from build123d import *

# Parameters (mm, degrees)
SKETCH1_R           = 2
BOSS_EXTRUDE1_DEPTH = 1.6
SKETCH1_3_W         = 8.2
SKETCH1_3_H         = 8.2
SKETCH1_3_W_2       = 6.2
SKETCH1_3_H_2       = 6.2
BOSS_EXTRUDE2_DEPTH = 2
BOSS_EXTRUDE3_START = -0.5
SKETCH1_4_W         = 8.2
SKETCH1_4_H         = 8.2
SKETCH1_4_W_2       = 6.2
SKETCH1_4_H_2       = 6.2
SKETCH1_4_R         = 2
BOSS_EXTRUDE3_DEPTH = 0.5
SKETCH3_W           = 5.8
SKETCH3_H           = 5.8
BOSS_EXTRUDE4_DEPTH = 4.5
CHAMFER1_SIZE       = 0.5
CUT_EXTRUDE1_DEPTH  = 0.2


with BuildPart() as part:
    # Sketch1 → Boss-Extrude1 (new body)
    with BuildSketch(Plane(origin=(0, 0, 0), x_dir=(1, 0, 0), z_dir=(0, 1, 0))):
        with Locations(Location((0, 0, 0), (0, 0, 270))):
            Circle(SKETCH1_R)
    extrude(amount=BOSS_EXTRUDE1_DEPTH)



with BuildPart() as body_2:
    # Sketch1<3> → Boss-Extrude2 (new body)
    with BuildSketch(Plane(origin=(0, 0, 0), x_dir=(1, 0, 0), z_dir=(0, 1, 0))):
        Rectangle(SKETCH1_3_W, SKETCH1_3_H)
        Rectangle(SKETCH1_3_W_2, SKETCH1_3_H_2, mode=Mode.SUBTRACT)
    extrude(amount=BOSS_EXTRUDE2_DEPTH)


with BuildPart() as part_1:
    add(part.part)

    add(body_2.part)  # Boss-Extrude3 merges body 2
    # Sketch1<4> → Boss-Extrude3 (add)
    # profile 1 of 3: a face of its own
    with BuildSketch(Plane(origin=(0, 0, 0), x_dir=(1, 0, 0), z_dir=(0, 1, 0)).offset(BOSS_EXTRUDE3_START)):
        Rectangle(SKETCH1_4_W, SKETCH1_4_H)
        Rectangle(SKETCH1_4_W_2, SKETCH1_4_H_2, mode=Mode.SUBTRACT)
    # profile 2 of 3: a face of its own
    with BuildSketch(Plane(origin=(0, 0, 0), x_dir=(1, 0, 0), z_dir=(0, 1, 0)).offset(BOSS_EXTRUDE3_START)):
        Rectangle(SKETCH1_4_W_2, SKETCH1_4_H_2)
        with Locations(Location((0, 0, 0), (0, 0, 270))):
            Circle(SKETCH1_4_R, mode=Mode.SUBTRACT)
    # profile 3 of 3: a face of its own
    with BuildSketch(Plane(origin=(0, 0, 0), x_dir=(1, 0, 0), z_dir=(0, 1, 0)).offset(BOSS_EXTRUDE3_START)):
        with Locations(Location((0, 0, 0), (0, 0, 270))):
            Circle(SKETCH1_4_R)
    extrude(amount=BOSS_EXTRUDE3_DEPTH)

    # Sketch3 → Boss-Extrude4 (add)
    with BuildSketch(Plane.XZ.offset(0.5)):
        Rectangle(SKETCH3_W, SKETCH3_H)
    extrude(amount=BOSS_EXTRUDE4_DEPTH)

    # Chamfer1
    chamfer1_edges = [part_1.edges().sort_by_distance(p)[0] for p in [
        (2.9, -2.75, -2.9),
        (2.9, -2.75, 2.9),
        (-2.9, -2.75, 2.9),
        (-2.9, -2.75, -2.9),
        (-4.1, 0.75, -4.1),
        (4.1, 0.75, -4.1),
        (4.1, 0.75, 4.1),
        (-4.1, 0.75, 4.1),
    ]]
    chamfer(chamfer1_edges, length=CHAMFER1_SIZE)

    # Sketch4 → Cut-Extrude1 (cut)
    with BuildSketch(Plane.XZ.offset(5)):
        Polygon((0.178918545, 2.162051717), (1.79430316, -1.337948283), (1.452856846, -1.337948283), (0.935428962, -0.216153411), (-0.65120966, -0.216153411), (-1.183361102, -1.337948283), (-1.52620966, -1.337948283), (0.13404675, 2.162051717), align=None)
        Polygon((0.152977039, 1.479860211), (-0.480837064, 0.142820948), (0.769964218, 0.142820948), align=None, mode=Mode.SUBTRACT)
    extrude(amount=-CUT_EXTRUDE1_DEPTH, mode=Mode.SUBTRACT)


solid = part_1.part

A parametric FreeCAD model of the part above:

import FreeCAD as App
import Part
import Sketcher

V = App.Vector
Q = App.Units.Quantity


def edges_at(feature, points):
    """Names of the edges that pass closest to the given points."""
    edges = feature.Shape.Edges
    near = lambda p: min(range(len(edges)), key=lambda i: edges[i].distToShape(Part.Vertex(*p))[0])
    return sorted({f"Edge{near(p) + 1}" for p in points})

doc = App.newDocument("Part")
params = doc.addObject("Spreadsheet::Sheet", "Params")
for row, (alias, value) in enumerate([
    ("sketch1_diameter", "4 mm"),
    ("pad1_length", "1.6 mm"),
    ("sketch2_width", "8.2 mm"),
    ("sketch2_width2", "6.2 mm"),
    ("pad2_length", "2 mm"),
    ("sketch3_width", "8.2 mm"),
    ("pad3_length", "0.5 mm"),
    ("sketch4_width", "5.8 mm"),
    ("pad4_length", "4.5 mm"),
    ("chamfer_size", "0.5 mm"),
    ("pocket1_length", "0.2 mm"),
], start=1):
    params.set(f"A{row}", alias)
    params.set(f"B{row}", "=" + value)
    params.setAlias(f"B{row}", alias)

body = doc.addObject("PartDesign::Body", "Body")

# Sketch on XZ plane
sketch1 = body.newObject("Sketcher::SketchObject", "Sketch")
sketch1.AttachmentSupport = (doc.getObject("XZ_Plane"), [""])
sketch1.MapMode = "FlatFace"
sketch1.addGeometry(Part.Circle(V(0, 0, 0), V(0, 0, 1), 2), False)
sketch1.addConstraint(Sketcher.Constraint("Coincident", 0, 3, -1, 1))
sketch1.addConstraint(Sketcher.Constraint("Diameter", 0, Q("4 mm")))
sketch1.setExpression("Constraints[1]", "Params.sketch1_diameter")
pad1 = body.newObject("PartDesign::Pad", "Pad")
pad1.Profile = sketch1
pad1.setExpression("Length", "Params.pad1_length")
pad1.Reversed = True
body2 = doc.addObject("PartDesign::Body", "Body001")

# Sketch on XZ plane
sketch2 = body2.newObject("Sketcher::SketchObject", "Sketch001")
sketch2.AttachmentSupport = (doc.getObject("XZ_Plane001"), [""])
sketch2.MapMode = "FlatFace"
sketch2.addGeometry(Part.LineSegment(V(-4.1, -4.1, 0), V(-4.1, 4.1, 0)), False)
sketch2.addGeometry(Part.LineSegment(V(-4.1, 4.1, 0), V(4.1, 4.1, 0)), False)
sketch2.addGeometry(Part.LineSegment(V(4.1, 4.1, 0), V(4.1, -4.1, 0)), False)
sketch2.addGeometry(Part.LineSegment(V(4.1, -4.1, 0), V(-4.1, -4.1, 0)), False)
sketch2.addGeometry(Part.LineSegment(V(3.1, 3.1, 0), V(-3.1, 3.1, 0)), False)
sketch2.addGeometry(Part.LineSegment(V(-3.1, 3.1, 0), V(-3.1, -3.1, 0)), False)
sketch2.addGeometry(Part.LineSegment(V(-3.1, -3.1, 0), V(3.1, -3.1, 0)), False)
sketch2.addGeometry(Part.LineSegment(V(3.1, -3.1, 0), V(3.1, 3.1, 0)), False)
sketch2.addConstraint(Sketcher.Constraint("Coincident", 0, 2, 1, 1))
sketch2.addConstraint(Sketcher.Constraint("Coincident", 1, 2, 2, 1))
sketch2.addConstraint(Sketcher.Constraint("Coincident", 2, 2, 3, 1))
sketch2.addConstraint(Sketcher.Constraint("Coincident", 3, 2, 0, 1))
sketch2.addConstraint(Sketcher.Constraint("Coincident", 4, 2, 5, 1))
sketch2.addConstraint(Sketcher.Constraint("Coincident", 5, 2, 6, 1))
sketch2.addConstraint(Sketcher.Constraint("Coincident", 6, 2, 7, 1))
sketch2.addConstraint(Sketcher.Constraint("Coincident", 7, 2, 4, 1))
sketch2.addConstraint(Sketcher.Constraint("Vertical", 0))
sketch2.addConstraint(Sketcher.Constraint("Horizontal", 1))
sketch2.addConstraint(Sketcher.Constraint("Vertical", 2))
sketch2.addConstraint(Sketcher.Constraint("Horizontal", 3))
sketch2.addConstraint(Sketcher.Constraint("Horizontal", 4))
sketch2.addConstraint(Sketcher.Constraint("Vertical", 5))
sketch2.addConstraint(Sketcher.Constraint("Horizontal", 6))
sketch2.addConstraint(Sketcher.Constraint("Vertical", 7))
sketch2.addConstraint(Sketcher.Constraint("Symmetric", 0, 2, 2, 2, -1, 1))
sketch2.addConstraint(Sketcher.Constraint("Symmetric", 4, 2, 6, 2, -1, 1))
sketch2.addConstraint(Sketcher.Constraint("Equal", 3, 0))
sketch2.addConstraint(Sketcher.Constraint("Equal", 6, 5))
sketch2.addConstraint(Sketcher.Constraint("DistanceX", 1, 1, 1, 2, Q("8.2 mm")))
sketch2.addConstraint(Sketcher.Constraint("DistanceX", 4, 2, 4, 1, Q("6.2 mm")))
sketch2.setExpression("Constraints[20]", "Params.sketch2_width")
sketch2.setExpression("Constraints[21]", "Params.sketch2_width2")
pad2 = body2.newObject("PartDesign::Pad", "Pad001")
pad2.Profile = sketch2
pad2.setExpression("Length", "Params.pad2_length")
pad2.Reversed = True
body.AllowCompound = True
doc.recompute()

boolean = body.newObject("PartDesign::Boolean", "Boolean")
boolean.Type = "Fuse"
boolean.addObjects([body2])

# Sketch on XZ plane
sketch3 = body.newObject("Sketcher::SketchObject", "Sketch002")
sketch3.AttachmentSupport = (doc.getObject("XZ_Plane"), [""])
sketch3.MapMode = "FlatFace"
sketch3.AttachmentOffset = App.Placement(V(0, 0, 0.5), App.Rotation())
sketch3.addGeometry(Part.LineSegment(V(-4.1, -4.1, 0), V(-4.1, 4.1, 0)), False)
sketch3.addGeometry(Part.LineSegment(V(-4.1, 4.1, 0), V(4.1, 4.1, 0)), False)
sketch3.addGeometry(Part.LineSegment(V(4.1, 4.1, 0), V(4.1, -4.1, 0)), False)
sketch3.addGeometry(Part.LineSegment(V(4.1, -4.1, 0), V(-4.1, -4.1, 0)), False)
sketch3.addConstraint(Sketcher.Constraint("Coincident", 0, 2, 1, 1))
sketch3.addConstraint(Sketcher.Constraint("Coincident", 1, 2, 2, 1))
sketch3.addConstraint(Sketcher.Constraint("Coincident", 2, 2, 3, 1))
sketch3.addConstraint(Sketcher.Constraint("Coincident", 3, 2, 0, 1))
sketch3.addConstraint(Sketcher.Constraint("Vertical", 0))
sketch3.addConstraint(Sketcher.Constraint("Horizontal", 1))
sketch3.addConstraint(Sketcher.Constraint("Vertical", 2))
sketch3.addConstraint(Sketcher.Constraint("Horizontal", 3))
sketch3.addConstraint(Sketcher.Constraint("Symmetric", 0, 2, 2, 2, -1, 1))
sketch3.addConstraint(Sketcher.Constraint("Equal", 3, 0))
sketch3.addConstraint(Sketcher.Constraint("DistanceX", 1, 1, 1, 2, Q("8.2 mm")))
sketch3.setExpression("Constraints[10]", "Params.sketch3_width")
pad3 = body.newObject("PartDesign::Pad", "Pad002")
pad3.Profile = sketch3
pad3.setExpression("Length", "Params.pad3_length")
pad3.Reversed = True

# Sketch on XZ plane
sketch4 = body.newObject("Sketcher::SketchObject", "Sketch003")
sketch4.AttachmentSupport = (doc.getObject("XZ_Plane"), [""])
sketch4.MapMode = "FlatFace"
sketch4.AttachmentOffset = App.Placement(V(0, 0, 0.5), App.Rotation())
sketch4.addGeometry(Part.LineSegment(V(-2.9, 2.9, 0), V(-2.9, -2.9, 0)), False)
sketch4.addGeometry(Part.LineSegment(V(-2.9, -2.9, 0), V(2.9, -2.9, 0)), False)
sketch4.addGeometry(Part.LineSegment(V(2.9, -2.9, 0), V(2.9, 2.9, 0)), False)
sketch4.addGeometry(Part.LineSegment(V(2.9, 2.9, 0), V(-2.9, 2.9, 0)), False)
sketch4.addConstraint(Sketcher.Constraint("Coincident", 0, 2, 1, 1))
sketch4.addConstraint(Sketcher.Constraint("Coincident", 1, 2, 2, 1))
sketch4.addConstraint(Sketcher.Constraint("Coincident", 2, 2, 3, 1))
sketch4.addConstraint(Sketcher.Constraint("Coincident", 3, 2, 0, 1))
sketch4.addConstraint(Sketcher.Constraint("Vertical", 0))
sketch4.addConstraint(Sketcher.Constraint("Horizontal", 1))
sketch4.addConstraint(Sketcher.Constraint("Vertical", 2))
sketch4.addConstraint(Sketcher.Constraint("Horizontal", 3))
sketch4.addConstraint(Sketcher.Constraint("Symmetric", 0, 2, 2, 2, -1, 1))
sketch4.addConstraint(Sketcher.Constraint("Equal", 3, 0))
sketch4.addConstraint(Sketcher.Constraint("DistanceX", 1, 1, 1, 2, Q("5.8 mm")))
sketch4.setExpression("Constraints[10]", "Params.sketch4_width")
pad4 = body.newObject("PartDesign::Pad", "Pad003")
pad4.Profile = sketch4
pad4.setExpression("Length", "Params.pad4_length")
doc.recompute()

chamfer = body.newObject("PartDesign::Chamfer", "Chamfer")
chamfer.Base = (pad4, edges_at(pad4, [
    (2.9, -2.75, -2.9),
    (2.9, -2.75, 2.9),
    (-2.9, -2.75, 2.9),
    (-2.9, -2.75, -2.9),
    (-4.1, 0.75, -4.1),
    (4.1, 0.75, -4.1),
    (4.1, 0.75, 4.1),
    (-4.1, 0.75, 4.1),
]))
chamfer.setExpression("Size", "Params.chamfer_size")

# Sketch on XZ plane
sketch5 = body.newObject("Sketcher::SketchObject", "Sketch004")
sketch5.AttachmentSupport = (doc.getObject("XZ_Plane"), [""])
sketch5.MapMode = "FlatFace"
sketch5.AttachmentOffset = App.Placement(V(0, 0, 5), App.Rotation())
sketch5.addGeometry(Part.LineSegment(V(1.794303, -1.337948, 0), V(0.178919, 2.162052, 0)), False)
sketch5.addGeometry(Part.LineSegment(V(0.178919, 2.162052, 0), V(0.134047, 2.162052, 0)), False)
sketch5.addGeometry(Part.LineSegment(V(0.134047, 2.162052, 0), V(-1.52621, -1.337948, 0)), False)
sketch5.addGeometry(Part.LineSegment(V(-1.52621, -1.337948, 0), V(-1.183361, -1.337948, 0)), False)
sketch5.addGeometry(Part.LineSegment(V(-1.183361, -1.337948, 0), V(-0.65121, -0.216153, 0)), False)
sketch5.addGeometry(Part.LineSegment(V(-0.65121, -0.216153, 0), V(0.935429, -0.216153, 0)), False)
sketch5.addGeometry(Part.LineSegment(V(0.935429, -0.216153, 0), V(1.452857, -1.337948, 0)), False)
sketch5.addGeometry(Part.LineSegment(V(1.452857, -1.337948, 0), V(1.794303, -1.337948, 0)), False)
sketch5.addGeometry(Part.LineSegment(V(0.152977, 1.47986, 0), V(0.769964, 0.142821, 0)), False)
sketch5.addGeometry(Part.LineSegment(V(0.769964, 0.142821, 0), V(-0.480837, 0.142821, 0)), False)
sketch5.addGeometry(Part.LineSegment(V(-0.480837, 0.142821, 0), V(0.152977, 1.47986, 0)), False)
sketch5.addConstraint(Sketcher.Constraint("Coincident", 0, 2, 1, 1))
sketch5.addConstraint(Sketcher.Constraint("Coincident", 1, 2, 2, 1))
sketch5.addConstraint(Sketcher.Constraint("Coincident", 2, 2, 3, 1))
sketch5.addConstraint(Sketcher.Constraint("Coincident", 3, 2, 4, 1))
sketch5.addConstraint(Sketcher.Constraint("Coincident", 4, 2, 5, 1))
sketch5.addConstraint(Sketcher.Constraint("Coincident", 5, 2, 6, 1))
sketch5.addConstraint(Sketcher.Constraint("Coincident", 6, 2, 7, 1))
sketch5.addConstraint(Sketcher.Constraint("Coincident", 7, 2, 0, 1))
sketch5.addConstraint(Sketcher.Constraint("Coincident", 8, 2, 9, 1))
sketch5.addConstraint(Sketcher.Constraint("Coincident", 9, 2, 10, 1))
sketch5.addConstraint(Sketcher.Constraint("Coincident", 10, 2, 8, 1))
sketch5.addConstraint(Sketcher.Constraint("Horizontal", 1))
sketch5.addConstraint(Sketcher.Constraint("Horizontal", 3))
sketch5.addConstraint(Sketcher.Constraint("Horizontal", 5))
sketch5.addConstraint(Sketcher.Constraint("Horizontal", 7))
sketch5.addConstraint(Sketcher.Constraint("Horizontal", 9))
sketch5.addConstraint(Sketcher.Constraint("Horizontal", 3, 2, 6, 2))
sketch5.addConstraint(Sketcher.Constraint("DistanceY", 2, 2, 1, 2, Q("3.5 mm")))
sketch5.addConstraint(Sketcher.Constraint("DistanceX", 9, 2, 9, 1, Q("1.250801 mm")))
sketch5.addConstraint(Sketcher.Constraint("DistanceX", 2, 2, 4, 2, Q("0.875 mm")))
sketch5.addConstraint(Sketcher.Constraint("DistanceX", 1, 2, 1, 1, Q("0.044872 mm")))
sketch5.addConstraint(Sketcher.Constraint("DistanceX", 3, 1, 3, 2, Q("0.342849 mm")))
sketch5.addConstraint(Sketcher.Constraint("DistanceX", 5, 1, 5, 2, Q("1.586639 mm")))
sketch5.addConstraint(Sketcher.Constraint("Distance", 8, Q("1.472531 mm")))
sketch5.addConstraint(Sketcher.Constraint("Distance", 10, Q("1.47966 mm")))
sketch5.addConstraint(Sketcher.Constraint("DistanceX", 7, 1, 7, 2, Q("0.341446 mm")))
sketch5.addConstraint(Sketcher.Constraint("DistanceX", -1, 1, 0, 2, Q("0.178919 mm")))
sketch5.addConstraint(Sketcher.Constraint("DistanceY", -1, 1, 0, 2, Q("2.162052 mm")))
sketch5.addConstraint(Sketcher.Constraint("DistanceX", 2, 2, -1, 1, Q("1.52621 mm")))
sketch5.addConstraint(Sketcher.Constraint("DistanceY", -1, 1, 8, 2, Q("0.142821 mm")))
sketch5.addConstraint(Sketcher.Constraint("DistanceX", 0, 2, 6, 2, Q("1.273938 mm")))
sketch5.addConstraint(Sketcher.Constraint("DistanceX", 8, 2, 7, 2, Q("1.024339 mm")))
sketch5.addConstraint(Sketcher.Constraint("Distance", 4, Q("1.241615 mm")))
pocket1 = body.newObject("PartDesign::Pocket", "Pocket")
pocket1.Profile = sketch5
pocket1.setExpression("Length", "Params.pocket1_length")

doc.recompute()
